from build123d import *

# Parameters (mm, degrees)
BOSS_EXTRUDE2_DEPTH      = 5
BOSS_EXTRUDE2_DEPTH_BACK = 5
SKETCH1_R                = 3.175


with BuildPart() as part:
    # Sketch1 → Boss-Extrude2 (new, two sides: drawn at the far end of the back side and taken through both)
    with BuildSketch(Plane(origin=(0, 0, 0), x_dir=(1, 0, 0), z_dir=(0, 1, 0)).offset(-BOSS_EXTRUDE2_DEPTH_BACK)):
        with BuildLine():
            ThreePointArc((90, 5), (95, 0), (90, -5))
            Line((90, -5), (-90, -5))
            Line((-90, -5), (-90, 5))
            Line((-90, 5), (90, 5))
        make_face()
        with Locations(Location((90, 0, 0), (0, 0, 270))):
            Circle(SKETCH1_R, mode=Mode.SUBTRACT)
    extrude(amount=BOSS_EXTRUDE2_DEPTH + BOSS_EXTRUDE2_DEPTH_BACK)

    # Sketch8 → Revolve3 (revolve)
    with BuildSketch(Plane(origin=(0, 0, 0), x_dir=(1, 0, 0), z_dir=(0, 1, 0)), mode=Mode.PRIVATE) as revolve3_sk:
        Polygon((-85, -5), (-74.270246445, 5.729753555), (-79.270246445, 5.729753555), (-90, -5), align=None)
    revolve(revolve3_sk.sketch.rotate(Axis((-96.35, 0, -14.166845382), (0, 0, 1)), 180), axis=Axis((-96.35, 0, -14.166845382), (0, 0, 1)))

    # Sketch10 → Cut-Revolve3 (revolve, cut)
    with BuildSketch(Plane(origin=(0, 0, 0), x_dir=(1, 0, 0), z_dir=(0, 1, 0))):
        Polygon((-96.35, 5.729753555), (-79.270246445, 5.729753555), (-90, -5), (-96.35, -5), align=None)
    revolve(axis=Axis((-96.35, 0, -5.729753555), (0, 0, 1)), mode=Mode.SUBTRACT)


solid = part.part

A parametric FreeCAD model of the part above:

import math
import FreeCAD as App
import Part
import Sketcher

V = App.Vector
Q = App.Units.Quantity


def add_polygon(sketch, points):
    """Adds a closed chain of lines whose ends are joined by coincident constraints."""
    first, n = sketch.GeometryCount, len(points)
    for a, b in zip(points, points[1:] + points[:1]):
        sketch.addGeometry(Part.LineSegment(App.Vector(*a, 0), App.Vector(*b, 0)), False)
    for i in range(n):
        sketch.addConstraint(Sketcher.Constraint("Coincident", first + i, 2, first + (i + 1) % n, 1))

doc = App.newDocument("Part")
params = doc.addObject("Spreadsheet::Sheet", "Params")
for row, (alias, value) in enumerate([
    ("sketch1_radius", "5 mm"),
    ("sketch1_diameter", "6.35 mm"),
    ("sketch1_width", "180 mm"),
    ("pad1_length", "5 mm"),
    ("pad1_length2", "5 mm"),
    ("sketch2_width", "5 mm"),
    ("revolution_angle", "360 deg"),
    ("sketch3_width", "6.35 mm"),
    ("groove_angle", "360 deg"),
], start=1):
    params.set(f"A{row}", alias)
    params.set(f"B{row}", "=" + value)
    params.setAlias(f"B{row}", alias)

body = doc.addObject("PartDesign::Body", "Body")

# Sketch on XZ plane
sketch1 = body.newObject("Sketcher::SketchObject", "Sketch")
sketch1.AttachmentSupport = (doc.getObject("XZ_Plane"), [""])
sketch1.MapMode = "FlatFace"
sketch1.addGeometry(Part.ArcOfCircle(Part.Circle(V(90, 0, 0), V(0, 0, 1), 5), math.radians(-90), math.radians(90)), False)
sketch1.addGeometry(Part.LineSegment(V(90, -5, 0), V(-90, -5, 0)), False)
sketch1.addGeometry(Part.LineSegment(V(-90, -5, 0), V(-90, 5, 0)), False)
sketch1.addGeometry(Part.LineSegment(V(-90, 5, 0), V(90, 5, 0)), False)
sketch1.addGeometry(Part.Circle(V(90, 0, 0), V(0, 0, 1), 3.2), False)
sketch1.addConstraint(Sketcher.Constraint("Tangent", 0, 1, 1, 1))
sketch1.addConstraint(Sketcher.Constraint("Coincident", 1, 2, 2, 1))
sketch1.addConstraint(Sketcher.Constraint("Coincident", 2, 2, 3, 1))
sketch1.addConstraint(Sketcher.Constraint("Tangent", 3, 2, 0, 2))
sketch1.addConstraint(Sketcher.Constraint("Horizontal", 1))
sketch1.addConstraint(Sketcher.Constraint("Vertical", 2))
sketch1.addConstraint(Sketcher.Constraint("Horizontal", 3))
sketch1.addConstraint(Sketcher.Constraint("Coincident", 4, 3, 0, 3))
sketch1.addConstraint(Sketcher.Constraint("Symmetric", 0, 1, 2, 2, -1, 1))
sketch1.addConstraint(Sketcher.Constraint("Radius", 0, Q("5 mm")))
sketch1.addConstraint(Sketcher.Constraint("Diameter", 4, Q("6.35 mm")))
sketch1.addConstraint(Sketcher.Constraint("DistanceX", 1, 2, 1, 1, Q("180 mm")))
sketch1.setExpression("Constraints[9]", "Params.sketch1_radius")
sketch1.setExpression("Constraints[10]", "Params.sketch1_diameter")
sketch1.setExpression("Constraints[11]", "Params.sketch1_width")
pad1 = body.newObject("PartDesign::Pad", "Pad")
pad1.Profile = sketch1
pad1.Type = "TwoLengths"
pad1.setExpression("Length", "Params.pad1_length")
pad1.setExpression("Length2", "Params.pad1_length2")
pad1.Reversed = True

# Sketch on XZ plane
sketch2 = body.newObject("Sketcher::SketchObject", "Sketch001")
sketch2.AttachmentSupport = (doc.getObject("XZ_Plane"), [""])
sketch2.MapMode = "FlatFace"
add_polygon(sketch2, [(-85, 5), (-74, -6), (-79, -6), (-90, 5)])  # lines 0-3
sketch2.addGeometry(Part.LineSegment(V(-96, -6, 0), V(-96, 5, 0)), True)  # axis
sketch2.addConstraint(Sketcher.Constraint("Horizontal", 1))
sketch2.addConstraint(Sketcher.Constraint("Horizontal", 3))
sketch2.addConstraint(Sketcher.Constraint("Vertical", 4))
sketch2.addConstraint(Sketcher.Constraint("Parallel", 0, 2))
sketch2.addConstraint(Sketcher.Constraint("Horizontal", 1, 2, 4, 1))
sketch2.addConstraint(Sketcher.Constraint("Horizontal", 3, 2, 4, 2))
sketch2.addConstraint(Sketcher.Constraint("DistanceX", 1, 2, 1, 1, Q("5 mm")))
sketch2.addConstraint(Sketcher.Constraint("Angle", 0, Q("-45 deg")))
sketch2.addConstraint(Sketcher.Constraint("DistanceX", 2, 2, -1, 1, Q("90 mm")))
sketch2.addConstraint(Sketcher.Constraint("DistanceY", -1, 1, 2, 2, Q("5 mm")))
sketch2.addConstraint(Sketcher.Constraint("DistanceX", 4, 1, -1, 1, Q("96.35 mm")))
sketch2.addConstraint(Sketcher.Constraint("DistanceY", 4, 1, 4, 2, Q("10.729754 mm")))
sketch2.setExpression("Constraints[10]", "Params.sketch2_width")
revolution = body.newObject("PartDesign::Revolution", "Revolution")
revolution.Profile = sketch2
revolution.ReferenceAxis = (sketch2, ["Axis0"])
revolution.setExpression("Angle", "Params.revolution_angle")

# Sketch on XZ plane
sketch3 = body.newObject("Sketcher::SketchObject", "Sketch002")
sketch3.AttachmentSupport = (doc.getObject("XZ_Plane"), [""])
sketch3.MapMode = "FlatFace"
add_polygon(sketch3, [(-79, -6), (-96, -6), (-96, 5), (-90, 5)])  # lines 0-3
sketch3.addGeometry(Part.LineSegment(V(-96, -6, 0), V(-96, 5, 0)), True)  # axis
sketch3.addConstraint(Sketcher.Constraint("Horizontal", 0))
sketch3.addConstraint(Sketcher.Constraint("Vertical", 1))
sketch3.addConstraint(Sketcher.Constraint("Horizontal", 2))
sketch3.addConstraint(Sketcher.Constraint("Vertical", 4))
sketch3.addConstraint(Sketcher.Constraint("Coincident", 4, 1, 0, 2))
sketch3.addConstraint(Sketcher.Constraint("Horizontal", 2, 2, 4, 2))
sketch3.addConstraint(Sketcher.Constraint("Angle", 3, Q("-45 deg")))
sketch3.addConstraint(Sketcher.Constraint("DistanceY", -1, 1, 1, 2, Q("5 mm")))
sketch3.addConstraint(Sketcher.Constraint("DistanceX", 2, 2, -1, 1, Q("90 mm")))
sketch3.addConstraint(Sketcher.Constraint("DistanceX", 2, 1, 2, 2, Q("6.35 mm")))
sketch3.addConstraint(Sketcher.Constraint("DistanceX", 0, 2, 0, 1, Q("17.079754 mm")))
sketch3.setExpression("Constraints[13]", "Params.sketch3_width")
groove = body.newObject("PartDesign::Groove", "Groove")
groove.Profile = sketch3
groove.ReferenceAxis = (sketch3, ["Axis0"])
groove.setExpression("Angle", "Params.groove_angle")

doc.recompute()
